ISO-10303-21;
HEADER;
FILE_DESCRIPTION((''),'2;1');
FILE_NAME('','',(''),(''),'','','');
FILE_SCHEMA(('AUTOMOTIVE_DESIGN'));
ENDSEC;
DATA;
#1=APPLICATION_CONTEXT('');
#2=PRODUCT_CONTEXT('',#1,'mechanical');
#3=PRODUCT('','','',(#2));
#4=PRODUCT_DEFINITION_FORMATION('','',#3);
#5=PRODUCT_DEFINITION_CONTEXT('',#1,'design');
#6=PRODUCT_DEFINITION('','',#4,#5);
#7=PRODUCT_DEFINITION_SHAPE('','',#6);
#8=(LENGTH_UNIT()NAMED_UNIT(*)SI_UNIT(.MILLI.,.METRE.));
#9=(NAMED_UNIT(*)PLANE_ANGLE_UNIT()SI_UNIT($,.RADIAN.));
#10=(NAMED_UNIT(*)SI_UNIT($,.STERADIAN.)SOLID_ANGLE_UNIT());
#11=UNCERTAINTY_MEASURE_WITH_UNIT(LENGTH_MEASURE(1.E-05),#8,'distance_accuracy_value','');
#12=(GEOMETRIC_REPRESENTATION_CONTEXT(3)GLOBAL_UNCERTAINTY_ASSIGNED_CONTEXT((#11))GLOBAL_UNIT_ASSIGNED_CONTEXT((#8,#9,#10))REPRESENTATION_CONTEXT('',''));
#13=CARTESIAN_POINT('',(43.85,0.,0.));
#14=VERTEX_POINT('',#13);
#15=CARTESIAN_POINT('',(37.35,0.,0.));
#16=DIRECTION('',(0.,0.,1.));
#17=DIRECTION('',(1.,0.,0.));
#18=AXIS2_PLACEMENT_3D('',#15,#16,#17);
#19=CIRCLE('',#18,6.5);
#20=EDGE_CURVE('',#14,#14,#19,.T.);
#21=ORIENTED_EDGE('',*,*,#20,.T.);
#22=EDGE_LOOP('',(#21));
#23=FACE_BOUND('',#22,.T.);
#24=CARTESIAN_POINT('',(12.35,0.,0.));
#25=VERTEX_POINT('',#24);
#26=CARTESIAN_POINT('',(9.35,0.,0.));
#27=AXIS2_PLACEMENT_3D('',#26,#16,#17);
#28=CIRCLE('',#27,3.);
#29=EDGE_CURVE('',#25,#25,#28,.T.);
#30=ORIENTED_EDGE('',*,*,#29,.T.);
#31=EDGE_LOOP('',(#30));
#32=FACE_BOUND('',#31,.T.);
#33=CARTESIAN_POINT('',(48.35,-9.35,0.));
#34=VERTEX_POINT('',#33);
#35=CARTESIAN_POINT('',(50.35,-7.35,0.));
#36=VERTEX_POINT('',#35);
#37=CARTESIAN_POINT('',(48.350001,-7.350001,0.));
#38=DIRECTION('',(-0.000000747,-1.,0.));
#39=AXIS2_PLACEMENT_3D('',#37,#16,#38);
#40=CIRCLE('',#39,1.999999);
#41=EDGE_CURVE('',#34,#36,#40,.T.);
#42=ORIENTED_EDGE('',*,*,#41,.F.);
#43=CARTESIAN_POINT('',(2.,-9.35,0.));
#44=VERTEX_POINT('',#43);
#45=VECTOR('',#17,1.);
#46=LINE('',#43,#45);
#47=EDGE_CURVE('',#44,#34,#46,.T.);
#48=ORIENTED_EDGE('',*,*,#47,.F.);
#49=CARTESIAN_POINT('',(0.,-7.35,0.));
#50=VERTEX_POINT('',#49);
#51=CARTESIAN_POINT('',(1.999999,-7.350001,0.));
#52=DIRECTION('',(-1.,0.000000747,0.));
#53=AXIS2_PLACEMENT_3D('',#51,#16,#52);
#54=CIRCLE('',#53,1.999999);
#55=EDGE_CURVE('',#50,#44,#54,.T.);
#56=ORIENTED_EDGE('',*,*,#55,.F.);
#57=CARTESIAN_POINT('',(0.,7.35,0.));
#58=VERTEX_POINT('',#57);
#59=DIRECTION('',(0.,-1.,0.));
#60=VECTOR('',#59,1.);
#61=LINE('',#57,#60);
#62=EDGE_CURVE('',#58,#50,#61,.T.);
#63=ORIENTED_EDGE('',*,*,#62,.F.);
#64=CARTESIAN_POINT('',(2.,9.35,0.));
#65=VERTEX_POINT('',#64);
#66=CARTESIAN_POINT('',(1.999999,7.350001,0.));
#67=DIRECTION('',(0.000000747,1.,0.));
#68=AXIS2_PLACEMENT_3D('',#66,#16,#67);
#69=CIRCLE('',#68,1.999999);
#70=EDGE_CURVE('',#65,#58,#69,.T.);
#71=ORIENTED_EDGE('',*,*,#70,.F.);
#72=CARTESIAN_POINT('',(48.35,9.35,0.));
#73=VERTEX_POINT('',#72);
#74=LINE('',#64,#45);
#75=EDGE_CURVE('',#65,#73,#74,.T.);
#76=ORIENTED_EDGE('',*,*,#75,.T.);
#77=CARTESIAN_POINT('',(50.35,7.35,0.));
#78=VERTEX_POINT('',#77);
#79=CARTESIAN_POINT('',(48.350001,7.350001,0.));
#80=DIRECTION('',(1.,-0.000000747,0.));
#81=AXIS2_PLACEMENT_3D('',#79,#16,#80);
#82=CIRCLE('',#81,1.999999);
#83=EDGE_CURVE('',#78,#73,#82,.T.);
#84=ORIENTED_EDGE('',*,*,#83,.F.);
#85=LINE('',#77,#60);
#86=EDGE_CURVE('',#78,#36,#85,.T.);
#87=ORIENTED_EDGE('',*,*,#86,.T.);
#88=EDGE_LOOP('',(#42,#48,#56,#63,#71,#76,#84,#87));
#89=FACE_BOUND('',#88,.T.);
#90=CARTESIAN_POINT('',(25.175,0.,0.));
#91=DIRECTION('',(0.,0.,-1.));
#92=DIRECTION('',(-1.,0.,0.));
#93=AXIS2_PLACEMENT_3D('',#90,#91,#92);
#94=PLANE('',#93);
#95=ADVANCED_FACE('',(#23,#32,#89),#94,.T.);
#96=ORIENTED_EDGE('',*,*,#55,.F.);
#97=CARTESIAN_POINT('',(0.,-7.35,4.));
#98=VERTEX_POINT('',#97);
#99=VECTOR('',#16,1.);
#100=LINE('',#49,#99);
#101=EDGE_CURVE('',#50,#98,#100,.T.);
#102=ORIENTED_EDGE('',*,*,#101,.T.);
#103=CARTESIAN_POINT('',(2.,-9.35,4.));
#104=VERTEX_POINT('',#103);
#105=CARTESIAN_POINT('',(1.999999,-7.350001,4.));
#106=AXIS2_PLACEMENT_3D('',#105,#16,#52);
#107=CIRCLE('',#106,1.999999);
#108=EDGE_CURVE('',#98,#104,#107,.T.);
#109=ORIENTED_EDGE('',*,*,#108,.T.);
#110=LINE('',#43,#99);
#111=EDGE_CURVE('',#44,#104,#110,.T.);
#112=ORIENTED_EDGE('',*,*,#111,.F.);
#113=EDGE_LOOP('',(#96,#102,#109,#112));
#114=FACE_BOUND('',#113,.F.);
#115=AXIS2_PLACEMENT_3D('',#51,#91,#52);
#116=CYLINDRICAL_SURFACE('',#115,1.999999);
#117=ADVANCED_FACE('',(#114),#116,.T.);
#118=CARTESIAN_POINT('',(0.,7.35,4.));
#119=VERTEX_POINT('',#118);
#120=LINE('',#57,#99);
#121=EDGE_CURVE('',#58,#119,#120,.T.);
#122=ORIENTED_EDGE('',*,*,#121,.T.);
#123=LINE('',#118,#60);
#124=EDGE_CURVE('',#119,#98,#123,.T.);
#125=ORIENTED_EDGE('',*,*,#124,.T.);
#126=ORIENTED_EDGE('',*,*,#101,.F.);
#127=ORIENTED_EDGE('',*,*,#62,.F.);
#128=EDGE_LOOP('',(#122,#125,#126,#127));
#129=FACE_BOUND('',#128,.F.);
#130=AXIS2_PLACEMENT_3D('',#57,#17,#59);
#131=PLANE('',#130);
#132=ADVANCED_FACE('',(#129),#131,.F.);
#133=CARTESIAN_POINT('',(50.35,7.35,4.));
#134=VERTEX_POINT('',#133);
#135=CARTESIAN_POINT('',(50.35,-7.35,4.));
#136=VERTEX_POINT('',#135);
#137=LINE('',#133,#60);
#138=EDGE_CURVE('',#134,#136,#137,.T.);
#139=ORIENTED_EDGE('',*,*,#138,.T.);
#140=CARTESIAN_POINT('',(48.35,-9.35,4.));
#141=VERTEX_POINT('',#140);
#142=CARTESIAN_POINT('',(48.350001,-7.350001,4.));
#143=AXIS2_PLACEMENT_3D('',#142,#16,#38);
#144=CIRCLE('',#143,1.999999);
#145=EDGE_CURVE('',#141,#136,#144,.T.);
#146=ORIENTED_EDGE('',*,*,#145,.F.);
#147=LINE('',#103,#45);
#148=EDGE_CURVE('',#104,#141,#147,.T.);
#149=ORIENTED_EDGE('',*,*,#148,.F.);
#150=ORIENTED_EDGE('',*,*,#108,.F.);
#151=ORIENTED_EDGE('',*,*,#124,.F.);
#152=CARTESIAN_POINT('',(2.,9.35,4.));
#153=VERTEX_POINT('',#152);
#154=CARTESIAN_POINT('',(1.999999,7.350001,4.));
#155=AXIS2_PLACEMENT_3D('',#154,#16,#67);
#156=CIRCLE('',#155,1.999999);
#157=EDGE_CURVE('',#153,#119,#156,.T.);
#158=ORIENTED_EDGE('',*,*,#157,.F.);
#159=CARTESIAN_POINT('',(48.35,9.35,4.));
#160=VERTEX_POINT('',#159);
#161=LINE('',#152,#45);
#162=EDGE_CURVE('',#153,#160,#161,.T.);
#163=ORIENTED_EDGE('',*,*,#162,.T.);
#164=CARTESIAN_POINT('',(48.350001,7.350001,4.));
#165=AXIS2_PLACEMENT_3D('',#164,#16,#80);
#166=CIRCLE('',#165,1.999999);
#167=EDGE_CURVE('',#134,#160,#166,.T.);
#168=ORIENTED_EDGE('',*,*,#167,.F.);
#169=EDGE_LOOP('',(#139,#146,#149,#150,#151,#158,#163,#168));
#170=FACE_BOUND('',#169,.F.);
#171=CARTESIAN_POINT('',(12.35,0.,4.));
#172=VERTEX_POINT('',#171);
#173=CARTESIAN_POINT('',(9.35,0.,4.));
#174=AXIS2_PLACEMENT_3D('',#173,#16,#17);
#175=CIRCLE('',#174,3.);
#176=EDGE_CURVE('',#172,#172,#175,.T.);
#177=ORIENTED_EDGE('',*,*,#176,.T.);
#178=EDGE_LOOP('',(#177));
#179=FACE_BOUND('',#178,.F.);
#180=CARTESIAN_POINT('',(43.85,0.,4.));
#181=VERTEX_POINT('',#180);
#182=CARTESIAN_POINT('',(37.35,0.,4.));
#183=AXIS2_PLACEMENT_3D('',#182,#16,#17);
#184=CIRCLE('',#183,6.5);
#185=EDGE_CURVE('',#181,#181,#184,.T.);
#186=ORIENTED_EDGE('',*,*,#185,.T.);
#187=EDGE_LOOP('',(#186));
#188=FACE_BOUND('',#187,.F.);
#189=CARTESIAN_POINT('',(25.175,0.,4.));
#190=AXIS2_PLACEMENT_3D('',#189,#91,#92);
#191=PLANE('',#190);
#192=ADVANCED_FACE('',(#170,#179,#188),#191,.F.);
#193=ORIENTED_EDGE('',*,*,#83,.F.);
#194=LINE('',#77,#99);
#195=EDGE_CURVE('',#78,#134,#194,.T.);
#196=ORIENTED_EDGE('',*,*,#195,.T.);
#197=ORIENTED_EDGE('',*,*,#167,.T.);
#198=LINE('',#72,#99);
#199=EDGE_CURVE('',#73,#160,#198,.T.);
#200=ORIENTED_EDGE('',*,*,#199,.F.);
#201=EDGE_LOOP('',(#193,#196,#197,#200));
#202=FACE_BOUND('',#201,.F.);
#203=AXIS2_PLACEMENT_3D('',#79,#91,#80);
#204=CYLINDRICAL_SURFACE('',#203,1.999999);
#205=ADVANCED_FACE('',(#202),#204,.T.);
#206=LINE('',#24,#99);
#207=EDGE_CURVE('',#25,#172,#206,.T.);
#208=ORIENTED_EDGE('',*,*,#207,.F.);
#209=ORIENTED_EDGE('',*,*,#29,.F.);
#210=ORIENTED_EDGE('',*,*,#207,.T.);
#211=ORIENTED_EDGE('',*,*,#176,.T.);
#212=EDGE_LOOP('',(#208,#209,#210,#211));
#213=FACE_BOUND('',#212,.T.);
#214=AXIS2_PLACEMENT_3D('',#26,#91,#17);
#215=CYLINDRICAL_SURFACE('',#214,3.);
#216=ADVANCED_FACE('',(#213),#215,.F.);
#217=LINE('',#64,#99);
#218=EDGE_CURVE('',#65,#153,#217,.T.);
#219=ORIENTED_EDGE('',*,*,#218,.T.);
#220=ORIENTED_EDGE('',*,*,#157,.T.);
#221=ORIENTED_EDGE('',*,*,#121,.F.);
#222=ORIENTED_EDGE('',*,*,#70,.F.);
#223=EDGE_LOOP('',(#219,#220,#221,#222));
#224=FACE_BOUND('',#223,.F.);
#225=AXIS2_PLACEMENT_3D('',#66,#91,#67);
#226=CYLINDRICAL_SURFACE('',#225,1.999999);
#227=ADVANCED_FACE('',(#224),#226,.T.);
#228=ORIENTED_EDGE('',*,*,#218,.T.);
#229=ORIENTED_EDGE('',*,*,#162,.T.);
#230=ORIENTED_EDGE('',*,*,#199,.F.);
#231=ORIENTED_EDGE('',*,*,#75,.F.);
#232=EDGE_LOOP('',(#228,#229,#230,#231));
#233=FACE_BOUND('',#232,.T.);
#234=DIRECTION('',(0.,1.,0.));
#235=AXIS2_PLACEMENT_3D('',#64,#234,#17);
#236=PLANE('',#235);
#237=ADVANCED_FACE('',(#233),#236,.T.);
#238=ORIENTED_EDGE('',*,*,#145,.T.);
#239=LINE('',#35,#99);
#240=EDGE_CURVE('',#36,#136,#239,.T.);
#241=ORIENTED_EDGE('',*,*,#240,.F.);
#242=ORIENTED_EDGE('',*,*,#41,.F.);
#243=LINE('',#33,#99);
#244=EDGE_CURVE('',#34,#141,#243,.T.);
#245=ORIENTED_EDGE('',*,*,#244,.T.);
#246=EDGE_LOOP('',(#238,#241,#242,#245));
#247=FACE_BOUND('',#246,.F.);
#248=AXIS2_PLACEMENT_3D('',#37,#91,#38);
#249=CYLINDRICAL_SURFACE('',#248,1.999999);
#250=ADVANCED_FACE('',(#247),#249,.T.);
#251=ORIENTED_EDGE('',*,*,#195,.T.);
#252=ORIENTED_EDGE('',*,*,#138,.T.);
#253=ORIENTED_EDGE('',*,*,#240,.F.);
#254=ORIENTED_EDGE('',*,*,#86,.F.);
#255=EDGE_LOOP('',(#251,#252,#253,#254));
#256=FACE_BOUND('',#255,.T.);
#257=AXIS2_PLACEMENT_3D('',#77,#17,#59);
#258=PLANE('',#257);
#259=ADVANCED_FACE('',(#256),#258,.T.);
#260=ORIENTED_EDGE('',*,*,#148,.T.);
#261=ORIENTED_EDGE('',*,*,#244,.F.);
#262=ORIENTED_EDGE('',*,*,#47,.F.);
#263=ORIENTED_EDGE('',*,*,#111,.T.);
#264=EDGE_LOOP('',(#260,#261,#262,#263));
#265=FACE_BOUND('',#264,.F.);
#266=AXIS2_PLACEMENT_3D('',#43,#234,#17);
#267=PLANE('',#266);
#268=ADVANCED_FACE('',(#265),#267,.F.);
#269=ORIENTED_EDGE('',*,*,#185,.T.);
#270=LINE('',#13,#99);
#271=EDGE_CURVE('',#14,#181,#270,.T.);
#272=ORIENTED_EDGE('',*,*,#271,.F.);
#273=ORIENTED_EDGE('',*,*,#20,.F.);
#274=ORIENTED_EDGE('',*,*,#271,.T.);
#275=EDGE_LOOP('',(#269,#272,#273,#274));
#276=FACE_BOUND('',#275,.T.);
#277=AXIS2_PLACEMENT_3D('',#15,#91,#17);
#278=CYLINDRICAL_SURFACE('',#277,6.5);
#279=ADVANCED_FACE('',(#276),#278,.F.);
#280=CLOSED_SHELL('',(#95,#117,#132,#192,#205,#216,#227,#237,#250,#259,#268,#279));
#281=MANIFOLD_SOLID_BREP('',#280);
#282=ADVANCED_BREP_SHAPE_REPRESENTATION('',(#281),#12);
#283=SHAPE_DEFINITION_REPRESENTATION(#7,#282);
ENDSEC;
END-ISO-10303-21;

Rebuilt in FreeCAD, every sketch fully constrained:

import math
import FreeCAD as App
import Part
import Sketcher
from FreeCAD import Vector
Q = App.Units.Quantity

doc = App.newDocument("Part")
params = doc.addObject("Spreadsheet::Sheet", "Params")
for row, (alias, value) in enumerate([
    ("sketch1_diameter", "13 mm"),
    ("sketch1_diameter2", "6 mm"),
    ("sketch1_radius", "1.999999 mm"),
    ("sketch1_height", "14.7 mm"),
    ("sketch1_width", "46.35 mm"),
    ("pad1_length", "4 mm"),
], start=1):
    params.set(f"A{row}", alias)
    params.set(f"B{row}", "=" + value)
    params.setAlias(f"B{row}", alias)

body = doc.addObject("PartDesign::Body", "Body")

sketch1 = body.newObject("Sketcher::SketchObject", "Sketch")
sketch1.AttachmentSupport = (doc.getObject("XY_Plane"), [""])
sketch1.MapMode = "FlatFace"
sketch1.addGeometry(Part.LineSegment(Vector(48.35, 9.35, 0), Vector(2, 9.35, 0)), False)
sketch1.addGeometry(Part.ArcOfCircle(Part.Circle(Vector(1.999999, 7.350001, 0), Vector(0, 0, 1), 1.999999), math.radians(89.999957), math.radians(180.000043)), False)
sketch1.addGeometry(Part.LineSegment(Vector(0, 7.35, 0), Vector(0, -7.35, 0)), False)
sketch1.addGeometry(Part.ArcOfCircle(Part.Circle(Vector(1.999999, -7.350001, 0), Vector(0, 0, 1), 1.999999), math.radians(179.999957), math.radians(270.000043)), False)
sketch1.addGeometry(Part.LineSegment(Vector(2, -9.35, 0), Vector(48.35, -9.35, 0)), False)
sketch1.addGeometry(Part.ArcOfCircle(Part.Circle(Vector(48.350001, -7.350001, 0), Vector(0, 0, 1), 1.999999), math.radians(-90.000043), math.radians(0.000043)), False)
sketch1.addGeometry(Part.LineSegment(Vector(50.35, -7.35, 0), Vector(50.35, 7.35, 0)), False)
sketch1.addGeometry(Part.ArcOfCircle(Part.Circle(Vector(48.350001, 7.350001, 0), Vector(0, 0, 1), 1.999999), math.radians(-0.000043), math.radians(90.000043)), False)
sketch1.addGeometry(Part.Circle(Vector(37.35, 0, 0), Vector(0, 0, 1), 6.5), False)
sketch1.addGeometry(Part.Circle(Vector(9.35, 0, 0), Vector(0, 0, 1), 3), False)
sketch1.addConstraint(Sketcher.Constraint("Tangent", 0, 2, 1, 1))
sketch1.addConstraint(Sketcher.Constraint("Tangent", 1, 2, 2, 1))
sketch1.addConstraint(Sketcher.Constraint("Tangent", 2, 2, 3, 1))
sketch1.addConstraint(Sketcher.Constraint("Tangent", 3, 2, 4, 1))
sketch1.addConstraint(Sketcher.Constraint("Tangent", 4, 2, 5, 1))
sketch1.addConstraint(Sketcher.Constraint("Tangent", 5, 2, 6, 1))
sketch1.addConstraint(Sketcher.Constraint("Tangent", 6, 2, 7, 1))
sketch1.addConstraint(Sketcher.Constraint("Tangent", 7, 2, 0, 1))
sketch1.addConstraint(Sketcher.Constraint("Horizontal", 0))
sketch1.addConstraint(Sketcher.Constraint("Vertical", 2))
sketch1.addConstraint(Sketcher.Constraint("Horizontal", 4))
sketch1.addConstraint(Sketcher.Constraint("Vertical", 6))
sketch1.addConstraint(Sketcher.Constraint("Equal", 1, 3))
sketch1.addConstraint(Sketcher.Constraint("Equal", 3, 5))
sketch1.addConstraint(Sketcher.Constraint("Equal", 5, 7))
sketch1.addConstraint(Sketcher.Constraint("Symmetric", 1, 2, 2, 2, -1, 1))
sketch1.addConstraint(Sketcher.Constraint("PointOnObject", 8, 3, -1))
sketch1.addConstraint(Sketcher.Constraint("PointOnObject", 9, 3, -1))
sketch1.addConstraint(Sketcher.Constraint("Diameter", 8, Q("13 mm")))
sketch1.addConstraint(Sketcher.Constraint("Diameter", 9, Q("6 mm")))
sketch1.addConstraint(Sketcher.Constraint("Radius", 1, Q("1.999999 mm")))
sketch1.addConstraint(Sketcher.Constraint("DistanceY", 2, 2, 2, 1, Q("14.7 mm")))
sketch1.addConstraint(Sketcher.Constraint("DistanceX", 8, 3, 5, 3, Q("11.000001 mm")))
sketch1.addConstraint(Sketcher.Constraint("DistanceX", 9, 3, 8, 3, Q("28 mm")))
sketch1.addConstraint(Sketcher.Constraint("DistanceX", 0, 2, 0, 1, Q("46.35 mm")))
sketch1.setExpression("Constraints[18]", "Params.sketch1_diameter")
sketch1.setExpression("Constraints[19]", "Params.sketch1_diameter2")
sketch1.setExpression("Constraints[20]", "Params.sketch1_radius")
sketch1.setExpression("Constraints[21]", "Params.sketch1_height")
sketch1.setExpression("Constraints[24]", "Params.sketch1_width")
pad1 = body.newObject("PartDesign::Pad", "Pad")
pad1.Profile = sketch1
pad1.setExpression("Length", "Params.pad1_length")

doc.recompute()
